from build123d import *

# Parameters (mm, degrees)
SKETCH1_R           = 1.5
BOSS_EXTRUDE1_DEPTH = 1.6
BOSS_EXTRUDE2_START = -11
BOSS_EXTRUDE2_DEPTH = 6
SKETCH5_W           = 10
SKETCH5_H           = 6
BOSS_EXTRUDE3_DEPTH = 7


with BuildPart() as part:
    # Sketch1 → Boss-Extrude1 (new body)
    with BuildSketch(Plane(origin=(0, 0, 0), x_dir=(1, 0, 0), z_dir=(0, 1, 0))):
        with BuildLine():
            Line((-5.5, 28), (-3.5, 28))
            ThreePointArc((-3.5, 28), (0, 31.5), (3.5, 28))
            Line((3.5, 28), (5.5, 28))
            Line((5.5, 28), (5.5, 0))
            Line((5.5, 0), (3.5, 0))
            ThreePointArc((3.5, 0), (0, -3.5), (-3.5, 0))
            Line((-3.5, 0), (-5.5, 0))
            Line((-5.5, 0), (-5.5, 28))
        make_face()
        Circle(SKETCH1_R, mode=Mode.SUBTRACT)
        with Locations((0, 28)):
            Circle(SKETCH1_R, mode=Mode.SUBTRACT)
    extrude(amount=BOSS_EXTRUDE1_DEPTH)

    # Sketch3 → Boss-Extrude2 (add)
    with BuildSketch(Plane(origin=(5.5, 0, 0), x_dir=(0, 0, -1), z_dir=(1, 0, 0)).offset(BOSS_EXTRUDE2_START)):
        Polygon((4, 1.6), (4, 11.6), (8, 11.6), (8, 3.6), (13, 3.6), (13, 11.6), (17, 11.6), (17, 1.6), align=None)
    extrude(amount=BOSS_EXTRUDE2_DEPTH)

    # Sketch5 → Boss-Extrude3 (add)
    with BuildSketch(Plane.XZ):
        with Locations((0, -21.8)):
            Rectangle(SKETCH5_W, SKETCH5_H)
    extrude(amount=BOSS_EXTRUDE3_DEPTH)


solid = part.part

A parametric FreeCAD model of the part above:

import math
import FreeCAD as App
import Part
import Sketcher

V = App.Vector

doc = App.newDocument("Part")
body = doc.addObject("PartDesign::Body", "Body")

# Sketch on XZ plane
sketch1 = doc.addObject("Sketcher::SketchObject", "Sketch")
body.addObject(sketch1)
sketch1.AttachmentSupport = (doc.XZ_Plane, [""])
sketch1.MapMode = "FlatFace"
sketch1.addGeometry([
    Part.LineSegment(V(-3.5, -28, 0), V(-5.5, -28, 0)),  # 0
    Part.LineSegment(V(-5.5, -28, 0), V(-5.5, 0, 0)),  # 1
    Part.LineSegment(V(-5.5, 0, 0), V(-3.5, 0, 0)),  # 2
    Part.ArcOfCircle(Part.Circle(V(0, 0, 0), V(0, 0, 1), 3.5), math.radians(0), math.radians(180)),  # 3
    Part.LineSegment(V(3.5, 0, 0), V(5.5, 0, 0)),  # 4
    Part.LineSegment(V(5.5, 0, 0), V(5.5, -28, 0)),  # 5
    Part.LineSegment(V(5.5, -28, 0), V(3.5, -28, 0)),  # 6
    Part.ArcOfCircle(Part.Circle(V(0, -28, 0), V(0, 0, 1), 3.5), math.radians(180), math.radians(360)),  # 7
    Part.Circle(V(0, 0, 0), V(0, 0, 1), 1.5),  # 8
    Part.Circle(V(0, -28, 0), V(0, 0, 1), 1.5),  # 9
], False)
sketch1.addConstraint([
    Sketcher.Constraint("Coincident", 0, 2, 1, 1),
    Sketcher.Constraint("Coincident", 1, 2, 2, 1),
    Sketcher.Constraint("Coincident", 2, 2, 3, 2),
    Sketcher.Constraint("Coincident", 3, 1, 4, 1),
    Sketcher.Constraint("Coincident", 4, 2, 5, 1),
    Sketcher.Constraint("Coincident", 5, 2, 6, 1),
    Sketcher.Constraint("Coincident", 6, 2, 7, 2),
    Sketcher.Constraint("Coincident", 7, 1, 0, 1),
    Sketcher.Constraint("Horizontal", 0),
    Sketcher.Constraint("Vertical", 1),
    Sketcher.Constraint("Horizontal", 2),
    Sketcher.Constraint("Horizontal", 4),
    Sketcher.Constraint("Vertical", 5),
    Sketcher.Constraint("Horizontal", 6),
    Sketcher.Constraint("Coincident", 3, 3, -1, 1),
    Sketcher.Constraint("Coincident", 8, 3, -1, 1),
    Sketcher.Constraint("Coincident", 9, 3, 7, 3),
    Sketcher.Constraint("Equal", 3, 7),
    Sketcher.Constraint("Equal", 8, 9),
    Sketcher.Constraint("Symmetric", 1, 2, 4, 2, -1, 1),
    Sketcher.Constraint("Symmetric", 6, 2, 7, 1, -2),
    Sketcher.Constraint("PointOnObject", 1, 2, -1),
    Sketcher.Constraint("Horizontal", 9, 3, 0, 2),
    Sketcher.Constraint("Diameter", 8, 3.0),
    Sketcher.Constraint("Radius", 3, 3.5),
    Sketcher.Constraint("DistanceX", 0, 2, 0, 1, 2.0),
    Sketcher.Constraint("DistanceY", 1, 1, 1, 2, 28.0),
])
pad1 = doc.addObject("PartDesign::Pad", "Pad")
body.addObject(pad1)
pad1.Profile = sketch1
pad1.Length = 1.6
pad1.Reversed = True

# Sketch on YZ plane
sketch2 = doc.addObject("Sketcher::SketchObject", "Sketch001")
body.addObject(sketch2)
sketch2.AttachmentSupport = (doc.YZ_Plane, [""])
sketch2.MapMode = "FlatFace"
sketch2.AttachmentOffset = App.Placement(V(0, 0, -5.5), App.Rotation())
sketch2.addGeometry([
    Part.LineSegment(V(11.6, -4, 0), V(1.6, -4, 0)),  # 0
    Part.LineSegment(V(1.6, -4, 0), V(1.6, -17, 0)),  # 1
    Part.LineSegment(V(1.6, -17, 0), V(11.6, -17, 0)),  # 2
    Part.LineSegment(V(11.6, -17, 0), V(11.6, -13, 0)),  # 3
    Part.LineSegment(V(11.6, -13, 0), V(3.6, -13, 0)),  # 4
    Part.LineSegment(V(3.6, -13, 0), V(3.6, -8, 0)),  # 5
    Part.LineSegment(V(3.6, -8, 0), V(11.6, -8, 0)),  # 6
    Part.LineSegment(V(11.6, -8, 0), V(11.6, -4, 0)),  # 7
], False)
sketch2.addConstraint([
    Sketcher.Constraint("Coincident", 0, 2, 1, 1),
    Sketcher.Constraint("Coincident", 1, 2, 2, 1),
    Sketcher.Constraint("Coincident", 2, 2, 3, 1),
    Sketcher.Constraint("Coincident", 3, 2, 4, 1),
    Sketcher.Constraint("Coincident", 4, 2, 5, 1),
    Sketcher.Constraint("Coincident", 5, 2, 6, 1),
    Sketcher.Constraint("Coincident", 6, 2, 7, 1),
    Sketcher.Constraint("Coincident", 7, 2, 0, 1),
    Sketcher.Constraint("Horizontal", 0),
    Sketcher.Constraint("Vertical", 1),
    Sketcher.Constraint("Horizontal", 2),
    Sketcher.Constraint("Vertical", 3),
    Sketcher.Constraint("Horizontal", 4),
    Sketcher.Constraint("Vertical", 5),
    Sketcher.Constraint("Horizontal", 6),
    Sketcher.Constraint("Vertical", 7),
    Sketcher.Constraint("Vertical", 3, 2, 6, 2),
    Sketcher.Constraint("Equal", 3, 7),
    Sketcher.Constraint("DistanceX", 0, 2, 0, 1, 10.0),
    Sketcher.Constraint("DistanceX", 4, 2, 4, 1, 8.0),
    Sketcher.Constraint("DistanceY", 1, 2, 1, 1, 13.0),
    Sketcher.Constraint("DistanceY", 3, 1, 3, 2, 4.0),
    Sketcher.Constraint("DistanceY", 0, 2, -1, 1, 4.0),
    Sketcher.Constraint("DistanceX", -1, 1, 0, 2, 1.6),
])
pad2 = doc.addObject("PartDesign::Pad", "Pad001")
body.addObject(pad2)
pad2.Profile = sketch2
pad2.Length = 6

# Sketch on XZ plane
sketch3 = doc.addObject("Sketcher::SketchObject", "Sketch002")
body.addObject(sketch3)
sketch3.AttachmentSupport = (doc.XZ_Plane, [""])
sketch3.MapMode = "FlatFace"
sketch3.addGeometry([
    Part.LineSegment(V(-5, -18.8, 0), V(-5, -24.8, 0)),
    Part.LineSegment(V(-5, -24.8, 0), V(5, -24.8, 0)),
    Part.LineSegment(V(5, -24.8, 0), V(5, -18.8, 0)),
    Part.LineSegment(V(5, -18.8, 0), V(-5, -18.8, 0)),
], False)
sketch3.addConstraint([
    Sketcher.Constraint("Coincident", 0, 2, 1, 1),
    Sketcher.Constraint("Coincident", 1, 2, 2, 1),
    Sketcher.Constraint("Coincident", 2, 2, 3, 1),
    Sketcher.Constraint("Coincident", 3, 2, 0, 1),
    Sketcher.Constraint("Vertical", 0),
    Sketcher.Constraint("Horizontal", 1),
    Sketcher.Constraint("Vertical", 2),
    Sketcher.Constraint("Horizontal", 3),
    Sketcher.Constraint("DistanceX", 1, 1, 1, 2, 10.0),
    Sketcher.Constraint("DistanceY", 0, 2, 0, 1, 6.0),
    Sketcher.Constraint("DistanceX", 0, 2, -1, 1, 5.0),
    Sketcher.Constraint("DistanceY", 0, 2, -1, 1, 24.8),
])
pad3 = doc.addObject("PartDesign::Pad", "Pad002")
body.addObject(pad3)
pad3.Profile = sketch3
pad3.Length = 7

doc.recompute()
